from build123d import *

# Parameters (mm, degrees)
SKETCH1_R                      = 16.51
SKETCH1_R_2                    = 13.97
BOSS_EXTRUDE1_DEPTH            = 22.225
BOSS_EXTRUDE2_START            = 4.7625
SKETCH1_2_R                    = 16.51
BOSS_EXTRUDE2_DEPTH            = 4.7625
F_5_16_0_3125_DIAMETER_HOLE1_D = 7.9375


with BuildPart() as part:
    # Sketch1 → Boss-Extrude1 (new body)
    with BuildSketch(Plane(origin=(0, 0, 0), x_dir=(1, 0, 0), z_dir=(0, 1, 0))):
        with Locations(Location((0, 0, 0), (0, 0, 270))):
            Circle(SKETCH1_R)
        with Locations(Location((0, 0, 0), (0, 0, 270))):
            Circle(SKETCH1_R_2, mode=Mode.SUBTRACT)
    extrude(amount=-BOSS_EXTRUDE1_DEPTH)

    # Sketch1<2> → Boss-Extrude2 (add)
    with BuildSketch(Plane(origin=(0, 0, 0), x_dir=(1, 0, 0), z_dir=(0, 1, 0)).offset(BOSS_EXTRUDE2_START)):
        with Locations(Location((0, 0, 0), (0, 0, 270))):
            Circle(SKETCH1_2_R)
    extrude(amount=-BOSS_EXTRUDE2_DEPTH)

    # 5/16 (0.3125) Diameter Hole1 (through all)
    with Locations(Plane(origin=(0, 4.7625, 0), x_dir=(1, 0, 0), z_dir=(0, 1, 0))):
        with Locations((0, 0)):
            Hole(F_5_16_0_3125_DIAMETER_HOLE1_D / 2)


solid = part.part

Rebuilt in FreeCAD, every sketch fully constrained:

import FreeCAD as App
import Part
import Sketcher
Q = App.Units.Quantity

doc = App.newDocument("Part")
body = doc.addObject("PartDesign::Body", "Body")

# Sketch on XZ plane
sketch1 = body.newObject("Sketcher::SketchObject", "Sketch")
sketch1.AttachmentSupport = (doc.getObject("XZ_Plane"), [""])
sketch1.MapMode = "FlatFace"
sketch1.addGeometry([
    Part.Circle(App.Vector(0, 0, 0), App.Vector(0, 0, 1), 17),
    Part.Circle(App.Vector(0, 0, 0), App.Vector(0, 0, 1), 14),
], False)
sketch1.addConstraint([
    Sketcher.Constraint("Coincident", 0, 3, -1, 1),
    Sketcher.Constraint("Coincident", 1, 3, -1, 1),
    Sketcher.Constraint("Diameter", 0, Q("1.3 in")),
    Sketcher.Constraint("Diameter", 1, Q("1.1 in")),
])
pad1 = body.newObject("PartDesign::Pad", "Pad")
pad1.Profile = sketch1
pad1.Length = Q("0.875 in")

# Sketch on XZ plane
sketch2 = body.newObject("Sketcher::SketchObject", "Sketch001")
sketch2.AttachmentSupport = (doc.getObject("XZ_Plane"), [""])
sketch2.MapMode = "FlatFace"
sketch2.AttachmentOffset = App.Placement(App.Vector(0, 0, -0.1875 * 25.4), App.Rotation())
sketch2.addGeometry(Part.Circle(App.Vector(0, 0, 0), App.Vector(0, 0, 1), 17), False)
sketch2.addConstraint([
    Sketcher.Constraint("Coincident", 0, 3, -1, 1),
    Sketcher.Constraint("Diameter", 0, Q("1.3 in")),
])
pad2 = body.newObject("PartDesign::Pad", "Pad001")
pad2.Profile = sketch2
pad2.Length = Q("0.1875 in")

# Sketch on XZ plane
sketch3 = body.newObject("Sketcher::SketchObject", "Sketch002")
sketch3.AttachmentSupport = (doc.getObject("XZ_Plane"), [""])
sketch3.MapMode = "FlatFace"
sketch3.AttachmentOffset = App.Placement(App.Vector(0, 0, -0.1875 * 25.4), App.Rotation())
sketch3.addGeometry(Part.Circle(App.Vector(0, 0, 0), App.Vector(0, 0, 1), 4), False)
sketch3.addConstraint([
    Sketcher.Constraint("Coincident", 0, 3, -1, 1),
    Sketcher.Constraint("Diameter", 0, Q("0.3125 in")),
])
doc.recompute()
hole = body.newObject("PartDesign::Hole", "Hole")
hole.Profile = sketch3
hole.ThreadType = "None"
hole.Diameter = Q("0.3125 in")
hole.DepthType = "ThroughAll"
hole.Reversed = True

doc.recompute()
